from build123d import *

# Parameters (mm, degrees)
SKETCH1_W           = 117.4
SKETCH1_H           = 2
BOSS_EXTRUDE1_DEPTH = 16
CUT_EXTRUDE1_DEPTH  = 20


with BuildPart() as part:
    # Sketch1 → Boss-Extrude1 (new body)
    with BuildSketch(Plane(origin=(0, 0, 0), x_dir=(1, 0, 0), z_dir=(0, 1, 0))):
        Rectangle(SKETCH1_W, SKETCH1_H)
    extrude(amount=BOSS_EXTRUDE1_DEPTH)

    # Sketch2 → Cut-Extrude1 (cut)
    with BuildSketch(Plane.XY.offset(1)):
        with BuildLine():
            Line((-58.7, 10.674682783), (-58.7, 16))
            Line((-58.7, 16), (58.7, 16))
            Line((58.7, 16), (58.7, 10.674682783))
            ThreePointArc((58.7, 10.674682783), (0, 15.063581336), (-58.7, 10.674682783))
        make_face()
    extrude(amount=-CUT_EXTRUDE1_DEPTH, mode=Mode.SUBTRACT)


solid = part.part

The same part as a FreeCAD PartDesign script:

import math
import FreeCAD as App
import Part
import Sketcher
from FreeCAD import Vector
Q = App.Units.Quantity

doc = App.newDocument("Part")
body = doc.addObject("PartDesign::Body", "Body")

# Sketch on XZ plane
sketch1 = body.newObject("Sketcher::SketchObject", "Sketch")
sketch1.AttachmentSupport = (doc.getObject("XZ_Plane"), [""])
sketch1.MapMode = "FlatFace"
sketch1.addGeometry([
    Part.LineSegment(Vector(-58.7, -1, 0), Vector(-58.7, 1, 0)),
    Part.LineSegment(Vector(-58.7, 1, 0), Vector(58.7, 1, 0)),
    Part.LineSegment(Vector(58.7, 1, 0), Vector(58.7, -1, 0)),
    Part.LineSegment(Vector(58.7, -1, 0), Vector(-58.7, -1, 0)),
], False)
sketch1.addConstraint([
    Sketcher.Constraint("Coincident", 0, 2, 1, 1),
    Sketcher.Constraint("Coincident", 1, 2, 2, 1),
    Sketcher.Constraint("Coincident", 2, 2, 3, 1),
    Sketcher.Constraint("Coincident", 3, 2, 0, 1),
    Sketcher.Constraint("Vertical", 0),
    Sketcher.Constraint("Horizontal", 1),
    Sketcher.Constraint("Vertical", 2),
    Sketcher.Constraint("Horizontal", 3),
    Sketcher.Constraint("Symmetric", 0, 2, 2, 2, -1, 1),
    Sketcher.Constraint("DistanceY", 0, 1, 0, 2, Q("2 mm")),
    Sketcher.Constraint("DistanceX", 1, 1, 1, 2, Q("117.4 mm")),
])
pad1 = body.newObject("PartDesign::Pad", "Pad")
pad1.Profile = sketch1
pad1.Length = 16
pad1.Reversed = True

# Sketch on XY plane
sketch2 = body.newObject("Sketcher::SketchObject", "Sketch001")
sketch2.AttachmentSupport = (doc.getObject("XY_Plane"), [""])
sketch2.MapMode = "FlatFace"
sketch2.AttachmentOffset = App.Placement(Vector(0, 0, 1), App.Rotation())
sketch2.addGeometry([
    Part.LineSegment(Vector(-58.7, 16, 0), Vector(-58.7, 10.674683, 0)),
    Part.ArcOfCircle(Part.Circle(Vector(0, -379.676966, 0), Vector(0, 0, 1), 394.740547), math.radians(81.448097), math.radians(98.551903)),
    Part.LineSegment(Vector(58.7, 10.674683, 0), Vector(58.7, 16, 0)),
    Part.LineSegment(Vector(58.7, 16, 0), Vector(-58.7, 16, 0)),
], False)
sketch2.addConstraint([
    Sketcher.Constraint("Coincident", 0, 2, 1, 2),
    Sketcher.Constraint("Coincident", 1, 1, 2, 1),
    Sketcher.Constraint("Coincident", 2, 2, 3, 1),
    Sketcher.Constraint("Coincident", 3, 2, 0, 1),
    Sketcher.Constraint("Vertical", 0),
    Sketcher.Constraint("Vertical", 2),
    Sketcher.Constraint("Horizontal", 3),
    Sketcher.Constraint("Symmetric", 0, 2, 1, 1, -2),
    Sketcher.Constraint("DistanceX", 3, 2, 3, 1, Q("117.4 mm")),
    Sketcher.Constraint("DistanceY", -1, 1, 2, 2, Q("16 mm")),
    Sketcher.Constraint("Radius", 1, Q("394.740547 mm")),
    Sketcher.Constraint("DistanceY", 0, 2, 0, 1, Q("5.325317 mm")),
])
pocket1 = body.newObject("PartDesign::Pocket", "Pocket")
pocket1.Profile = sketch2
pocket1.Length = 20

doc.recompute()
